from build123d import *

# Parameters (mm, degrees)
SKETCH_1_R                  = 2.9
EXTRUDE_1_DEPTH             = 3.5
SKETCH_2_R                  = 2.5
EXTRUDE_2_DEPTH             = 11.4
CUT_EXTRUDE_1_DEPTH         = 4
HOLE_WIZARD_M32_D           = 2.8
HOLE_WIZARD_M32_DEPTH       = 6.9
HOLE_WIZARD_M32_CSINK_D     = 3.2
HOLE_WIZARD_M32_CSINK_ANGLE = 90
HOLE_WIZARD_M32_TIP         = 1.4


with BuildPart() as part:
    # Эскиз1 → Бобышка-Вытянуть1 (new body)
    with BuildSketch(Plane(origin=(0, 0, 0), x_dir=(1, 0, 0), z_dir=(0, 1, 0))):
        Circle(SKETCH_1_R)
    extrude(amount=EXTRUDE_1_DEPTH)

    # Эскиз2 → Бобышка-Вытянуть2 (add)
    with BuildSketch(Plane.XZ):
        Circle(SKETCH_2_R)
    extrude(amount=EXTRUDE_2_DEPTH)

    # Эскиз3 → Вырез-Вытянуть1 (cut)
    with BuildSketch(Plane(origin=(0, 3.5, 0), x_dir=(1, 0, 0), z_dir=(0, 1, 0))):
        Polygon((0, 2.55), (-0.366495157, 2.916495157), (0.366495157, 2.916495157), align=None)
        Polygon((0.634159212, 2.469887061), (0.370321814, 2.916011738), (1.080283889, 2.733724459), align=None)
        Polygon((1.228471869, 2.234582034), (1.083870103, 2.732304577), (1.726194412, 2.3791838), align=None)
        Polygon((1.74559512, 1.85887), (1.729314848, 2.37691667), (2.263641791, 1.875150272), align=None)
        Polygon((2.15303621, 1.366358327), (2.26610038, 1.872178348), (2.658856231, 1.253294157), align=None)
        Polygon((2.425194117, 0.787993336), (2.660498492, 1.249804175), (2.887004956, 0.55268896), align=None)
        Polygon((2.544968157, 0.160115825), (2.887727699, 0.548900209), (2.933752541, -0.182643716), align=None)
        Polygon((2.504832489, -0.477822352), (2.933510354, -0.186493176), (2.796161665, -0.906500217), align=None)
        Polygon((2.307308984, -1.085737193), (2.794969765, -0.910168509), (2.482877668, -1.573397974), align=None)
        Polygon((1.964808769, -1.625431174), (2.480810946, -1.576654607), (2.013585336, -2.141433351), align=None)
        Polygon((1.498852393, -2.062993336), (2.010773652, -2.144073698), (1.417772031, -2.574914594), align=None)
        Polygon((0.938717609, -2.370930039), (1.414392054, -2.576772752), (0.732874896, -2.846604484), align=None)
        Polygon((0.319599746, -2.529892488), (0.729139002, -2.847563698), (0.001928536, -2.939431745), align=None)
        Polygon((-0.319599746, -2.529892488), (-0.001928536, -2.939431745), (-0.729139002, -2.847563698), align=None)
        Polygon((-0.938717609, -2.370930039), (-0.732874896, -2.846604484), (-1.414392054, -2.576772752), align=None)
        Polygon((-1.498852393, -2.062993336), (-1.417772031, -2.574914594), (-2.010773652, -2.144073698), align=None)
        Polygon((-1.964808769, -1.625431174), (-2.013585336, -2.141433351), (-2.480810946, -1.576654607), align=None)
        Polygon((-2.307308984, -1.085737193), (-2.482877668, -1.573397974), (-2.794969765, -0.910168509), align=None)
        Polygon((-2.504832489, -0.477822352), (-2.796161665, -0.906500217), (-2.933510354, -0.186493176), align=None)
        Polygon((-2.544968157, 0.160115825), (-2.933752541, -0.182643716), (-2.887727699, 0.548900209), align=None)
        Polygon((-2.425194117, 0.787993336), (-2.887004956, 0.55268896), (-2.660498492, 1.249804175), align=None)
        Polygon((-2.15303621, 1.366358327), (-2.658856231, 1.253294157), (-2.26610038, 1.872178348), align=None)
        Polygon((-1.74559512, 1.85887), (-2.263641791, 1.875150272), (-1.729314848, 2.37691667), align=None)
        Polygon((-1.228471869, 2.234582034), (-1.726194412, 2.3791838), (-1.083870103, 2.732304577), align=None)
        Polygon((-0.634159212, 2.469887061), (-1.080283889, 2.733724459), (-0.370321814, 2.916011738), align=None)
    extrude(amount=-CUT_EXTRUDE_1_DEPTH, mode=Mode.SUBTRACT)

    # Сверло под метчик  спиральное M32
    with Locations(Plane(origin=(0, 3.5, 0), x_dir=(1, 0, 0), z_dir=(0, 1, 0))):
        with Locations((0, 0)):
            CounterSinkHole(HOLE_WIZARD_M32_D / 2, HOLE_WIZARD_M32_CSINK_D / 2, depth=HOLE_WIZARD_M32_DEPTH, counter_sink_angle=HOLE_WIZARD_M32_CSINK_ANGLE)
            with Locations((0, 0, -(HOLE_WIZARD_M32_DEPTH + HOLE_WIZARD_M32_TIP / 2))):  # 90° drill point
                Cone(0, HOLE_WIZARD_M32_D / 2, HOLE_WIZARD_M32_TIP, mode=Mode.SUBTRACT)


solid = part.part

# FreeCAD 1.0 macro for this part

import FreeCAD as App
import Part
import Sketcher
Q = App.Units.Quantity


def add_polygon(sketch, points):
    """Adds a closed chain of lines whose ends are joined by coincident constraints."""
    first, n = sketch.GeometryCount, len(points)
    for a, b in zip(points, points[1:] + points[:1]):
        sketch.addGeometry(Part.LineSegment(App.Vector(*a, 0), App.Vector(*b, 0)), False)
    for i in range(n):
        sketch.addConstraint(Sketcher.Constraint("Coincident", first + i, 2, first + (i + 1) % n, 1))

doc = App.newDocument("Part")
body = doc.addObject("PartDesign::Body", "Body")

sketch1 = doc.addObject("Sketcher::SketchObject", "Sketch")
body.addObject(sketch1)
sketch1.AttachmentSupport = (doc.XZ_Plane, [""])
sketch1.MapMode = "FlatFace"
sketch1.addGeometry(Part.Circle(App.Vector(0, 0, 0), App.Vector(0, 0, 1), 2.9), False)
sketch1.addConstraint([
    Sketcher.Constraint("Coincident", 0, 3, -1, 1),
    Sketcher.Constraint("Diameter", 0, 5.8),
])
pad1 = doc.addObject("PartDesign::Pad", "Pad")
body.addObject(pad1)
pad1.Profile = sketch1
pad1.Length = 3.5
pad1.Reversed = True

sketch2 = doc.addObject("Sketcher::SketchObject", "Sketch001")
body.addObject(sketch2)
sketch2.AttachmentSupport = (doc.XZ_Plane, [""])
sketch2.MapMode = "FlatFace"
sketch2.addGeometry(Part.Circle(App.Vector(0, 0, 0), App.Vector(0, 0, 1), 2.5), False)
sketch2.addConstraint([
    Sketcher.Constraint("Coincident", 0, 3, -1, 1),
    Sketcher.Constraint("Diameter", 0, 5.0),
])
pad2 = doc.addObject("PartDesign::Pad", "Pad001")
body.addObject(pad2)
pad2.Profile = sketch2
pad2.Length = 11.4

sketch3 = doc.addObject("Sketcher::SketchObject", "Sketch002")
body.addObject(sketch3)
sketch3.AttachmentSupport = (doc.XZ_Plane, [""])
sketch3.MapMode = "FlatFace"
sketch3.AttachmentOffset = App.Placement(App.Vector(0, 0, -3.5), App.Rotation())
add_polygon(sketch3, [(-0.366495, -2.916495), (0, -2.55), (0.366495, -2.916495)])
add_polygon(sketch3, [(0.370322, -2.916012), (0.634159, -2.469887), (1.080284, -2.733724)])
add_polygon(sketch3, [(1.08387, -2.732305), (1.228472, -2.234582), (1.726194, -2.379184)])
add_polygon(sketch3, [(1.729315, -2.376917), (1.745595, -1.85887), (2.263642, -1.87515)])
add_polygon(sketch3, [(2.2661, -1.872178), (2.153036, -1.366358), (2.658856, -1.253294)])
add_polygon(sketch3, [(2.660498, -1.249804), (2.425194, -0.787993), (2.887005, -0.552689)])
add_polygon(sketch3, [(2.887728, -0.5489), (2.544968, -0.160116), (2.933753, 0.182644)])
add_polygon(sketch3, [(2.93351, 0.186493), (2.504832, 0.477822), (2.796162, 0.9065)])
add_polygon(sketch3, [(2.79497, 0.910169), (2.307309, 1.085737), (2.482878, 1.573398)])
add_polygon(sketch3, [(2.480811, 1.576655), (1.964809, 1.625431), (2.013585, 2.141433)])
add_polygon(sketch3, [(2.010774, 2.144074), (1.498852, 2.062993), (1.417772, 2.574915)])
add_polygon(sketch3, [(1.414392, 2.576773), (0.938718, 2.37093), (0.732875, 2.846604)])
add_polygon(sketch3, [(0.729139, 2.847564), (0.3196, 2.529892), (0.001929, 2.939432)])
add_polygon(sketch3, [(-0.001929, 2.939432), (-0.3196, 2.529892), (-0.729139, 2.847564)])
add_polygon(sketch3, [(-0.732875, 2.846604), (-0.938718, 2.37093), (-1.414392, 2.576773)])
add_polygon(sketch3, [(-1.417772, 2.574915), (-1.498852, 2.062993), (-2.010774, 2.144074)])
add_polygon(sketch3, [(-2.013585, 2.141433), (-1.964809, 1.625431), (-2.480811, 1.576655)])
add_polygon(sketch3, [(-2.482878, 1.573398), (-2.307309, 1.085737), (-2.79497, 0.910169)])
add_polygon(sketch3, [(-2.796162, 0.9065), (-2.504832, 0.477822), (-2.93351, 0.186493)])
add_polygon(sketch3, [(-2.933753, 0.182644), (-2.544968, -0.160116), (-2.887728, -0.5489)])
add_polygon(sketch3, [(-2.887005, -0.552689), (-2.425194, -0.787993), (-2.660498, -1.249804)])
add_polygon(sketch3, [(-2.658856, -1.253294), (-2.153036, -1.366358), (-2.2661, -1.872178)])
add_polygon(sketch3, [(-2.263642, -1.87515), (-1.745595, -1.85887), (-1.729315, -2.376917)])
add_polygon(sketch3, [(-1.726194, -2.379184), (-1.228472, -2.234582), (-1.08387, -2.732305)])
add_polygon(sketch3, [(-1.080284, -2.733724), (-0.634159, -2.469887), (-0.370322, -2.916012)])
sketch3.addConstraint([
    Sketcher.Constraint("Horizontal", 2),
    Sketcher.Constraint("Symmetric", 36, 2, 39, 2, -2),
    Sketcher.Constraint("Symmetric", 38, 2, 40, 2, -2),
    Sketcher.Constraint("Symmetric", 37, 2, 41, 2, -2),
    Sketcher.Constraint("Symmetric", 33, 2, 42, 2, -2),
    Sketcher.Constraint("Symmetric", 35, 2, 43, 2, -2),
    Sketcher.Constraint("Symmetric", 34, 2, 44, 2, -2),
    Sketcher.Constraint("Symmetric", 30, 2, 45, 2, -2),
    Sketcher.Constraint("Symmetric", 32, 2, 46, 2, -2),
    Sketcher.Constraint("Symmetric", 31, 2, 47, 2, -2),
    Sketcher.Constraint("Symmetric", 27, 2, 48, 2, -2),
    Sketcher.Constraint("Symmetric", 29, 2, 49, 2, -2),
    Sketcher.Constraint("Symmetric", 28, 2, 50, 2, -2),
    Sketcher.Constraint("Symmetric", 24, 2, 51, 2, -2),
    Sketcher.Constraint("Symmetric", 26, 2, 52, 2, -2),
    Sketcher.Constraint("Symmetric", 25, 2, 53, 2, -2),
    Sketcher.Constraint("Symmetric", 21, 2, 54, 2, -2),
    Sketcher.Constraint("Symmetric", 23, 2, 55, 2, -2),
    Sketcher.Constraint("Symmetric", 22, 2, 56, 2, -2),
    Sketcher.Constraint("Symmetric", 18, 2, 57, 2, -2),
    Sketcher.Constraint("Symmetric", 20, 2, 58, 2, -2),
    Sketcher.Constraint("Symmetric", 19, 2, 59, 2, -2),
    Sketcher.Constraint("Symmetric", 15, 2, 60, 2, -2),
    Sketcher.Constraint("Symmetric", 17, 2, 61, 2, -2),
    Sketcher.Constraint("Symmetric", 16, 2, 62, 2, -2),
    Sketcher.Constraint("Symmetric", 12, 2, 63, 2, -2),
    Sketcher.Constraint("Symmetric", 14, 2, 64, 2, -2),
    Sketcher.Constraint("Symmetric", 13, 2, 65, 2, -2),
    Sketcher.Constraint("Symmetric", 9, 2, 66, 2, -2),
    Sketcher.Constraint("Symmetric", 11, 2, 67, 2, -2),
    Sketcher.Constraint("Symmetric", 10, 2, 68, 2, -2),
    Sketcher.Constraint("Symmetric", 6, 2, 69, 2, -2),
    Sketcher.Constraint("Symmetric", 8, 2, 70, 2, -2),
    Sketcher.Constraint("Symmetric", 7, 2, 71, 2, -2),
    Sketcher.Constraint("Symmetric", 3, 2, 72, 2, -2),
    Sketcher.Constraint("Symmetric", 5, 2, 73, 2, -2),
    Sketcher.Constraint("Symmetric", 4, 2, 74, 2, -2),
    Sketcher.Constraint("PointOnObject", 0, 2, -2),
    Sketcher.Constraint("Perpendicular", 0, 1),
    Sketcher.Constraint("Perpendicular", 3, 4),
    Sketcher.Constraint("Perpendicular", 6, 7),
    Sketcher.Constraint("Perpendicular", 9, 10),
    Sketcher.Constraint("Perpendicular", 12, 13),
    Sketcher.Constraint("Perpendicular", 15, 16),
    Sketcher.Constraint("Perpendicular", 18, 19),
    Sketcher.Constraint("Perpendicular", 21, 22),
    Sketcher.Constraint("Perpendicular", 24, 25),
    Sketcher.Constraint("Perpendicular", 27, 28),
    Sketcher.Constraint("Perpendicular", 30, 31),
    Sketcher.Constraint("Perpendicular", 33, 34),
    Sketcher.Constraint("Perpendicular", 36, 37),
    Sketcher.Constraint("Equal", 0, 1),
    Sketcher.Constraint("Equal", 1, 3),
    Sketcher.Constraint("Equal", 3, 4),
    Sketcher.Constraint("Equal", 4, 6),
    Sketcher.Constraint("Equal", 6, 7),
    Sketcher.Constraint("Equal", 7, 9),
    Sketcher.Constraint("Equal", 9, 10),
    Sketcher.Constraint("Equal", 10, 12),
    Sketcher.Constraint("Equal", 12, 13),
    Sketcher.Constraint("Equal", 13, 15),
    Sketcher.Constraint("Equal", 15, 16),
    Sketcher.Constraint("Equal", 16, 18),
    Sketcher.Constraint("Equal", 18, 19),
    Sketcher.Constraint("Equal", 19, 21),
    Sketcher.Constraint("Equal", 21, 22),
    Sketcher.Constraint("Equal", 22, 24),
    Sketcher.Constraint("Equal", 24, 25),
    Sketcher.Constraint("Equal", 25, 27),
    Sketcher.Constraint("Equal", 27, 28),
    Sketcher.Constraint("Equal", 28, 30),
    Sketcher.Constraint("Equal", 30, 31),
    Sketcher.Constraint("Equal", 31, 33),
    Sketcher.Constraint("Equal", 33, 34),
    Sketcher.Constraint("Equal", 34, 36),
    Sketcher.Constraint("Equal", 36, 37),
    Sketcher.Constraint("Angle", 15, Q("117 deg")),
    Sketcher.Constraint("Angle", 30, Q("-171 deg")),
    Sketcher.Constraint("Angle", 3, Q("59.4 deg")),
    Sketcher.Constraint("Angle", 6, Q("73.8 deg")),
    Sketcher.Constraint("Angle", 9, Q("88.2 deg")),
    Sketcher.Constraint("Angle", 12, Q("102.6 deg")),
    Sketcher.Constraint("Angle", 18, Q("131.4 deg")),
    Sketcher.Constraint("Angle", 21, Q("145.8 deg")),
    Sketcher.Constraint("Angle", 24, Q("160.2 deg")),
    Sketcher.Constraint("Angle", 27, Q("174.6 deg")),
    Sketcher.Constraint("Angle", 33, Q("-156.6 deg")),
    Sketcher.Constraint("Angle", 36, Q("-142.2 deg")),
    Sketcher.Constraint("DistanceY", 0, 2, -1, 1, 2.55),
    Sketcher.Constraint("DistanceX", 2, 2, 2, 1, 0.73299),
    Sketcher.Constraint("DistanceX", -1, 1, 14, 2, 2.2661),
    Sketcher.Constraint("DistanceX", -1, 1, 17, 2, 2.660498),
    Sketcher.Constraint("DistanceY", 20, 2, -1, 1, 0.5489),
    Sketcher.Constraint("DistanceY", -1, 1, 22, 2, 0.9065),
    Sketcher.Constraint("DistanceX", -1, 1, 36, 2, 0.3196),
    Sketcher.Constraint("DistanceX", -1, 1, 3, 2, 0.634159),
    Sketcher.Constraint("DistanceY", 5, 2, -1, 1, 2.916012),
    Sketcher.Constraint("DistanceX", -1, 1, 6, 2, 1.228472),
    Sketcher.Constraint("DistanceY", 9, 2, -1, 1, 1.85887),
    Sketcher.Constraint("DistanceX", -1, 1, 10, 2, 2.263642),
    Sketcher.Constraint("DistanceY", 12, 2, -1, 1, 1.366358),
    Sketcher.Constraint("DistanceY", 16, 2, -1, 1, 0.552689),
    Sketcher.Constraint("DistanceX", -1, 1, 18, 2, 2.544968),
    Sketcher.Constraint("DistanceX", -1, 1, 22, 2, 2.796162),
    Sketcher.Constraint("DistanceX", -1, 1, 24, 2, 2.307309),
    Sketcher.Constraint("DistanceY", -1, 1, 26, 2, 0.910169),
    Sketcher.Constraint("DistanceX", -1, 1, 27, 2, 1.964809),
    Sketcher.Constraint("DistanceY", -1, 1, 27, 2, 1.625431),
    Sketcher.Constraint("DistanceY", -1, 1, 33, 2, 2.37093),
    Sketcher.Constraint("DistanceY", -1, 1, 37, 2, 2.939432),
    Sketcher.Constraint("DistanceY", 6, 2, -1, 1, 2.234582),
    Sketcher.Constraint("DistanceX", -1, 1, 30, 2, 1.498852),
    Sketcher.Constraint("DistanceY", -1, 1, 30, 2, 2.062993),
    Sketcher.Constraint("DistanceX", -1, 1, 33, 2, 0.938718),
])
pocket1 = doc.addObject("PartDesign::Pocket", "Pocket")
body.addObject(pocket1)
pocket1.Profile = sketch3
pocket1.Length = 4
pocket1.Reversed = True

sketch4 = doc.addObject("Sketcher::SketchObject", "Sketch003")
body.addObject(sketch4)
sketch4.AttachmentSupport = (doc.XZ_Plane, [""])
sketch4.MapMode = "FlatFace"
sketch4.AttachmentOffset = App.Placement(App.Vector(0, 0, -3.5), App.Rotation())
sketch4.addGeometry(Part.Circle(App.Vector(0, 0, 0), App.Vector(0, 0, 1), 1.4), False)
sketch4.addConstraint([
    Sketcher.Constraint("Coincident", 0, 3, -1, 1),
    Sketcher.Constraint("Diameter", 0, 2.8),
])
doc.recompute()
hole = doc.addObject("PartDesign::Hole", "Hole")
body.addObject(hole)
hole.Profile = sketch4
hole.ThreadType = "None"
hole.Diameter = 2.8
hole.DepthType = "Dimension"
hole.Depth = 6.9
hole.DrillPoint = "Angled"
hole.DrillPointAngle = 90
hole.HoleCutType = "Countersink"
hole.HoleCutDiameter = 3.2
hole.HoleCutCountersinkAngle = 90
hole.Reversed = True

doc.recompute()
